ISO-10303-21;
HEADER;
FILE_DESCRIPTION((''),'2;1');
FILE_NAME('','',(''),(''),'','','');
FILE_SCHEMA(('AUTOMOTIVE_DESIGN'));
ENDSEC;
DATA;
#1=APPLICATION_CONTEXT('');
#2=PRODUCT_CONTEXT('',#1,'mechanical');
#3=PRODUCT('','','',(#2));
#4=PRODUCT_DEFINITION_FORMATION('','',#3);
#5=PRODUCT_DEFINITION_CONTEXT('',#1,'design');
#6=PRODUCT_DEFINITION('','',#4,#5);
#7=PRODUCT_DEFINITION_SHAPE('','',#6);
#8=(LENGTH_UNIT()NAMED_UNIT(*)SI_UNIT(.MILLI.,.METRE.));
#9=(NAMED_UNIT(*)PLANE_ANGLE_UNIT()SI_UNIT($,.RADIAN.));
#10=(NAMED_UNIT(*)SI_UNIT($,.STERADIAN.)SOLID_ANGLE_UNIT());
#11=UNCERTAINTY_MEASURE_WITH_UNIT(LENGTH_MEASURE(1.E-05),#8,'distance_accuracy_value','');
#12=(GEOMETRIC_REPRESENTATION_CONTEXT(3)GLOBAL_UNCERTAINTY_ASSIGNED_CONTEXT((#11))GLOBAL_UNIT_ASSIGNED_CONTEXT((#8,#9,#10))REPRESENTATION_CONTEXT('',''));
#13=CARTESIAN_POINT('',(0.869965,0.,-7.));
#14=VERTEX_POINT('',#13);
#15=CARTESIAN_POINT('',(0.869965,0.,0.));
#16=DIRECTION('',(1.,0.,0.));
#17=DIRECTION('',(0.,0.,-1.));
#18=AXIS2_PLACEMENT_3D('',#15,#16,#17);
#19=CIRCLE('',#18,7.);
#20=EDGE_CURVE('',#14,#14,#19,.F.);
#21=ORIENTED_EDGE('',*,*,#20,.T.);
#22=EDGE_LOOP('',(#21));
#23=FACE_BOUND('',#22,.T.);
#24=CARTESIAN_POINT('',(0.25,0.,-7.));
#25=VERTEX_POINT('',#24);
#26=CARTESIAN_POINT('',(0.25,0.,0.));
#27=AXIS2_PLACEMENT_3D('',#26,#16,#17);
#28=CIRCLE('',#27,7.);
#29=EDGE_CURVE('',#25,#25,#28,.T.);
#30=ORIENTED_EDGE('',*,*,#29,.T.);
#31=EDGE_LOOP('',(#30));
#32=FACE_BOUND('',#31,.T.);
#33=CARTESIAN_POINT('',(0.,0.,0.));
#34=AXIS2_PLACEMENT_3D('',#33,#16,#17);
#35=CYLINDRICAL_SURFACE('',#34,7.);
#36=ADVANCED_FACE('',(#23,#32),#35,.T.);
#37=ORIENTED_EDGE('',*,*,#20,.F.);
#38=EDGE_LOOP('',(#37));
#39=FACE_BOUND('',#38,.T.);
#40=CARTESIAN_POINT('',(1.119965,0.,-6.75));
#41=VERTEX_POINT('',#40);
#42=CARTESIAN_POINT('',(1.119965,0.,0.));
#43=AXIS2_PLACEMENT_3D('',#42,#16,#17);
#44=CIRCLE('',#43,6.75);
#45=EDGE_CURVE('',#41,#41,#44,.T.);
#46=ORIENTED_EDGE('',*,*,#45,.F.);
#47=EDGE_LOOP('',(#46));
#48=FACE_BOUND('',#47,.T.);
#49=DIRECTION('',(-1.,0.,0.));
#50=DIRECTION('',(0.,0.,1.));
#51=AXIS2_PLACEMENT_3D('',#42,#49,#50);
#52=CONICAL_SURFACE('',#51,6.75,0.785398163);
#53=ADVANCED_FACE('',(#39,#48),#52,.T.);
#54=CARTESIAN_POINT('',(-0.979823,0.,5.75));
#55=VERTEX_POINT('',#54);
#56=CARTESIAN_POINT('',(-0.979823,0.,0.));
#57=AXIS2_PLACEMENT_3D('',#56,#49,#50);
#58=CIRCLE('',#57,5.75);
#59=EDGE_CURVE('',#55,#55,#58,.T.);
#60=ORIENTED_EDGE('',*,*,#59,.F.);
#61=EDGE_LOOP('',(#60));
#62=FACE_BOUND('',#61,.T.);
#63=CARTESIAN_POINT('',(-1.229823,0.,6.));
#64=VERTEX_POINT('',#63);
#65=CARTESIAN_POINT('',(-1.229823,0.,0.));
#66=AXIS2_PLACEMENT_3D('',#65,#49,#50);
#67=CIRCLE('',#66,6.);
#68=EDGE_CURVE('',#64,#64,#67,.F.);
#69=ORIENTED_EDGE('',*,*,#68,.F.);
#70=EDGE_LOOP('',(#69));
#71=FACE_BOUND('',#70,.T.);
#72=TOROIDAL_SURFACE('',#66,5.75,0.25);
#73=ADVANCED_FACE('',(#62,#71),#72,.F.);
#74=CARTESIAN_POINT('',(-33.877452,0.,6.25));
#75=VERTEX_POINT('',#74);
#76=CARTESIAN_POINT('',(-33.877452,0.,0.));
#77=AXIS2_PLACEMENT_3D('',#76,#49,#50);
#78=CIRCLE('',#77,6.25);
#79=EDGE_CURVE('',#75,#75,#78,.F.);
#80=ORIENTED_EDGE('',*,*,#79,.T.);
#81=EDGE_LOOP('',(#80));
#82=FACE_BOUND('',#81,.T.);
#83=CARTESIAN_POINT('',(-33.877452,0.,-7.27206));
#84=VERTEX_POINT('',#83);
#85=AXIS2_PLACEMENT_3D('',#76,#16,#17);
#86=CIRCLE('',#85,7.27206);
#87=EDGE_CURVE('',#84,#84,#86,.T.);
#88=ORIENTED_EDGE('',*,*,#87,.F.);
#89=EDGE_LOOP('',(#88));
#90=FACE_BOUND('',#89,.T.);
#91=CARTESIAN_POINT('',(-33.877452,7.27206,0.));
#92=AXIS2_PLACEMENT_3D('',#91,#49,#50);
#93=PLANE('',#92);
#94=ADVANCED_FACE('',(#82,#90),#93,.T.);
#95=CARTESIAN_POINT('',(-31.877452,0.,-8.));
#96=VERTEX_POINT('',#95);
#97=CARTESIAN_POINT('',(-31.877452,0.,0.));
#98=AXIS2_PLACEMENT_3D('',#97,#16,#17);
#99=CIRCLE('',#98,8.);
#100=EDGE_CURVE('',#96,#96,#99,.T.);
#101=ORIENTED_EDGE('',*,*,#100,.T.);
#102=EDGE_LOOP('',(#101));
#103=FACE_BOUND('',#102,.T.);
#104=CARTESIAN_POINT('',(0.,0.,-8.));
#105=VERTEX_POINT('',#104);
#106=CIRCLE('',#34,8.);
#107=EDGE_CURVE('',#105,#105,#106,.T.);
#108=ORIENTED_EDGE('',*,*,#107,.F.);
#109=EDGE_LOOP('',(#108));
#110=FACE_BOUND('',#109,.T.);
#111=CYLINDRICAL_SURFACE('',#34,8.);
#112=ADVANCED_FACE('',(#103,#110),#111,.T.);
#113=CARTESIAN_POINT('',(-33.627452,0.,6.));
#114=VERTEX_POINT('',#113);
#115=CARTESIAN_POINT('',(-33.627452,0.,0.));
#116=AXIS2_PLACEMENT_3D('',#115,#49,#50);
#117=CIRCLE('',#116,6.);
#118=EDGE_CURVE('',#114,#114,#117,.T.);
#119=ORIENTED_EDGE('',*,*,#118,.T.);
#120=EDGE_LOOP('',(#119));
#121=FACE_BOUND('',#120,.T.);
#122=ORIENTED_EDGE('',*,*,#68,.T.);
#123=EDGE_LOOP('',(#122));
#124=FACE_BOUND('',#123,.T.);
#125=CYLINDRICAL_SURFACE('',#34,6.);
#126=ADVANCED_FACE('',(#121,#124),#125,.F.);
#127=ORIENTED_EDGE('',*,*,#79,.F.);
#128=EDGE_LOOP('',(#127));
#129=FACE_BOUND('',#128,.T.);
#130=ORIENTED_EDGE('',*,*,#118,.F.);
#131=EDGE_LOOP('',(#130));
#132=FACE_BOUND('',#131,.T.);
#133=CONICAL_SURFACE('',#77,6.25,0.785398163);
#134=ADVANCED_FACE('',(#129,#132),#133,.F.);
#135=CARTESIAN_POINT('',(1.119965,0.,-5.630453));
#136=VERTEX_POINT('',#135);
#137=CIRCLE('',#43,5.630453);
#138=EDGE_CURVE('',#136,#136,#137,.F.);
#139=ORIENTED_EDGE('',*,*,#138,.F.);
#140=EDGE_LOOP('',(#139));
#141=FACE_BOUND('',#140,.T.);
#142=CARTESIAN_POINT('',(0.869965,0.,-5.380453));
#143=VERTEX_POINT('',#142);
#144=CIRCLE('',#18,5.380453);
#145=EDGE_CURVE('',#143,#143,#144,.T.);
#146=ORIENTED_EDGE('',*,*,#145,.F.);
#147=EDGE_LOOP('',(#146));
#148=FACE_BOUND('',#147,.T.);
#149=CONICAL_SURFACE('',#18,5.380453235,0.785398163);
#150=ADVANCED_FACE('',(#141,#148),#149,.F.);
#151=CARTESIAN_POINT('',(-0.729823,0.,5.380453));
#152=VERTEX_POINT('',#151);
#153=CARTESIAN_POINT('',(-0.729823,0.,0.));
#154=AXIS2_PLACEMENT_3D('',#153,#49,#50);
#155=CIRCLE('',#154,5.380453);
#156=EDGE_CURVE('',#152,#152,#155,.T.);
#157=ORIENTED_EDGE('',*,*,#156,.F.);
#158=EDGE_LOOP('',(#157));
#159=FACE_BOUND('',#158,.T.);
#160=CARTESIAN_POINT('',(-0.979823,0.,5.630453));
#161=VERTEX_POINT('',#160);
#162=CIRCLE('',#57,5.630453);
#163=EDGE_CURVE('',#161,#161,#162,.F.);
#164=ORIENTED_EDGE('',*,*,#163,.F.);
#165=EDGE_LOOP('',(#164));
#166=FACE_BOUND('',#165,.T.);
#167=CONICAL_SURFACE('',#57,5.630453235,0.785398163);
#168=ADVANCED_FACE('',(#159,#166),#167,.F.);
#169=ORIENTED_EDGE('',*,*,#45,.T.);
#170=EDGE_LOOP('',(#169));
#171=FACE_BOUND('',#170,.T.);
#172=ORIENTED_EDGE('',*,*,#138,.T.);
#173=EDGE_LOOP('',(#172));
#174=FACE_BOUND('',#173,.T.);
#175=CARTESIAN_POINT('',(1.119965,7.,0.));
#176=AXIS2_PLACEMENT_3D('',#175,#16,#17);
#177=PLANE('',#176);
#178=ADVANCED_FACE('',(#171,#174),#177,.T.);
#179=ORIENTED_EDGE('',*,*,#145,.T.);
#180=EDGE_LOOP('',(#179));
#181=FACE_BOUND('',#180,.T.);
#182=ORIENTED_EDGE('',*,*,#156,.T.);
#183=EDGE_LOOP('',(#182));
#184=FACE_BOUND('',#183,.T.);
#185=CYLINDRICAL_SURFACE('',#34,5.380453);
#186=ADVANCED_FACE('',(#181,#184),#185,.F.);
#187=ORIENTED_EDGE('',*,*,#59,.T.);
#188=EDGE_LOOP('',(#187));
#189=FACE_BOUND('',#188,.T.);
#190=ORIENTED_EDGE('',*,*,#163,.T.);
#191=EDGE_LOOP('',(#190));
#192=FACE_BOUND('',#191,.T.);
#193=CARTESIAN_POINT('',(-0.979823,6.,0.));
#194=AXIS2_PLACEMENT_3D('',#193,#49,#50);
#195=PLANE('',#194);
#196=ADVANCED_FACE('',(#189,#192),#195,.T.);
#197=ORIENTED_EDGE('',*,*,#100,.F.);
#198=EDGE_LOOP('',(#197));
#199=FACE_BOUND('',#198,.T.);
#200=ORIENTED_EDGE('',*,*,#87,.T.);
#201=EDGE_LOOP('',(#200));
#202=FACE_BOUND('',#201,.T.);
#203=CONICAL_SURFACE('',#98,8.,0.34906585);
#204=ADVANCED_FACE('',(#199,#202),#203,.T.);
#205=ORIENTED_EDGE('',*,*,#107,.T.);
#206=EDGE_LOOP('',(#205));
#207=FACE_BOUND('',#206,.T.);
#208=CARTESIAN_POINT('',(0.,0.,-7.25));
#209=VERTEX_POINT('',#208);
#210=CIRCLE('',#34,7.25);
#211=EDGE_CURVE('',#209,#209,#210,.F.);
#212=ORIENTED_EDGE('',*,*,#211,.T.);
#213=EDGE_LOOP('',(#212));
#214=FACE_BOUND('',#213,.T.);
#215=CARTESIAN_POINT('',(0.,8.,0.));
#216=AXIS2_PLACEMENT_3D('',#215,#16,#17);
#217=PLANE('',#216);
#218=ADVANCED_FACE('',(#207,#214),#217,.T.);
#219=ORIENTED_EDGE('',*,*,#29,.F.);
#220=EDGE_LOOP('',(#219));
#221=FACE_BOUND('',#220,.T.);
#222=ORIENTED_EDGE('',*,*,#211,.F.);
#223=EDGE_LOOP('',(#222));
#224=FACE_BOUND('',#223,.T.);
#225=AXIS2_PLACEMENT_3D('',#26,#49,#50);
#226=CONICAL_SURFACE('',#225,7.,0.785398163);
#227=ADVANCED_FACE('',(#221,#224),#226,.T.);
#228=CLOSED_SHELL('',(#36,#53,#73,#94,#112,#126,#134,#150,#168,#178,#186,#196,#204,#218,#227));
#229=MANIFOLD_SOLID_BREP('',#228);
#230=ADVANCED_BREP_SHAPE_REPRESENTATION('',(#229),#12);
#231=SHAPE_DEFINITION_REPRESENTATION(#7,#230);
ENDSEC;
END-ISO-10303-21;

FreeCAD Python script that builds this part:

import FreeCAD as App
import Part
import Sketcher

V = App.Vector
Q = App.Units.Quantity


def edges_at(feature, points):
    """Names of the edges that pass closest to the given points."""
    edges = feature.Shape.Edges
    near = lambda p: min(range(len(edges)), key=lambda i: edges[i].distToShape(Part.Vertex(*p))[0])
    return sorted({f"Edge{near(p) + 1}" for p in points})

doc = App.newDocument("Part")
body = doc.addObject("PartDesign::Body", "Body")

# Sketch on XY plane
sketch1 = body.newObject("Sketcher::SketchObject", "Sketch")
sketch1.AttachmentSupport = (doc.getObject("XY_Plane"), [""])
sketch1.MapMode = "FlatFace"
sketch1.addGeometry([
    Part.LineSegment(V(-31.877452, 8, 0), V(-33.877452, 7.27206, 0)),  # 0
    Part.LineSegment(V(-33.877452, 7.27206, 0), V(-33.877452, 6, 0)),  # 1
    Part.LineSegment(V(-33.877452, 6, 0), V(-0.979823, 6, 0)),  # 2
    Part.LineSegment(V(-0.979823, 6, 0), V(-0.979823, 5.380453, 0)),  # 3
    Part.LineSegment(V(-0.979823, 5.380453, 0), V(1.119965, 5.380453, 0)),  # 4
    Part.LineSegment(V(1.119965, 5.380453, 0), V(1.119965, 7, 0)),  # 5
    Part.LineSegment(V(1.119965, 7, 0), V(0, 7, 0)),  # 6
    Part.LineSegment(V(0, 7, 0), V(0, 8, 0)),  # 7
    Part.LineSegment(V(0, 8, 0), V(-31.877452, 8, 0)),  # 8
], False)
sketch1.addConstraint([
    Sketcher.Constraint("Coincident", 0, 2, 1, 1),
    Sketcher.Constraint("Coincident", 1, 2, 2, 1),
    Sketcher.Constraint("Coincident", 2, 2, 3, 1),
    Sketcher.Constraint("Coincident", 3, 2, 4, 1),
    Sketcher.Constraint("Coincident", 4, 2, 5, 1),
    Sketcher.Constraint("Coincident", 5, 2, 6, 1),
    Sketcher.Constraint("Coincident", 6, 2, 7, 1),
    Sketcher.Constraint("Coincident", 7, 2, 8, 1),
    Sketcher.Constraint("Coincident", 8, 2, 0, 1),
    Sketcher.Constraint("Vertical", 1),
    Sketcher.Constraint("Horizontal", 2),
    Sketcher.Constraint("Vertical", 3),
    Sketcher.Constraint("Horizontal", 4),
    Sketcher.Constraint("Vertical", 5),
    Sketcher.Constraint("Horizontal", 6),
    Sketcher.Constraint("Vertical", 7),
    Sketcher.Constraint("Horizontal", 8),
    Sketcher.Constraint("PointOnObject", 6, 2, -2),
    Sketcher.Constraint("DistanceY", 7, 1, 7, 2, Q("1 mm")),
    Sketcher.Constraint("Angle", 0, Q("-160 deg")),
    Sketcher.Constraint("DistanceY", -1, 1, 1, 2, Q("6 mm")),
    Sketcher.Constraint("DistanceY", -1, 1, 5, 2, Q("7 mm")),
    Sketcher.Constraint("DistanceX", 0, 2, 8, 2, Q("2 mm")),
    Sketcher.Constraint("DistanceX", 2, 1, 2, 2, Q("32.897628 mm")),
    Sketcher.Constraint("DistanceX", 4, 1, 4, 2, Q("2.099789 mm")),
    Sketcher.Constraint("DistanceX", 8, 2, 8, 1, Q("31.877452 mm")),
    Sketcher.Constraint("DistanceY", 3, 2, 3, 1, Q("0.619547 mm")),
])
revolution = body.newObject("PartDesign::Revolution", "Revolution")
revolution.Profile = sketch1
revolution.ReferenceAxis = (sketch1, ["H_Axis"])
revolution.Angle = 360
doc.recompute()

chamfer = body.newObject("PartDesign::Chamfer", "Chamfer")
chamfer.Base = (revolution, edges_at(revolution, [
    (-33.877, 0, 6),
    (-0.98, 0, 5.38),
    (1.12, 0, 5.38),
    (1.12, 0, 7),
    (0, 0, 7),
]))
chamfer.Size = 0.25
doc.recompute()

fillet = body.newObject("PartDesign::Fillet", "Fillet")
fillet.Base = (chamfer, edges_at(chamfer, [(-0.98, 0, 6)]))
fillet.Radius = 0.25

doc.recompute()
